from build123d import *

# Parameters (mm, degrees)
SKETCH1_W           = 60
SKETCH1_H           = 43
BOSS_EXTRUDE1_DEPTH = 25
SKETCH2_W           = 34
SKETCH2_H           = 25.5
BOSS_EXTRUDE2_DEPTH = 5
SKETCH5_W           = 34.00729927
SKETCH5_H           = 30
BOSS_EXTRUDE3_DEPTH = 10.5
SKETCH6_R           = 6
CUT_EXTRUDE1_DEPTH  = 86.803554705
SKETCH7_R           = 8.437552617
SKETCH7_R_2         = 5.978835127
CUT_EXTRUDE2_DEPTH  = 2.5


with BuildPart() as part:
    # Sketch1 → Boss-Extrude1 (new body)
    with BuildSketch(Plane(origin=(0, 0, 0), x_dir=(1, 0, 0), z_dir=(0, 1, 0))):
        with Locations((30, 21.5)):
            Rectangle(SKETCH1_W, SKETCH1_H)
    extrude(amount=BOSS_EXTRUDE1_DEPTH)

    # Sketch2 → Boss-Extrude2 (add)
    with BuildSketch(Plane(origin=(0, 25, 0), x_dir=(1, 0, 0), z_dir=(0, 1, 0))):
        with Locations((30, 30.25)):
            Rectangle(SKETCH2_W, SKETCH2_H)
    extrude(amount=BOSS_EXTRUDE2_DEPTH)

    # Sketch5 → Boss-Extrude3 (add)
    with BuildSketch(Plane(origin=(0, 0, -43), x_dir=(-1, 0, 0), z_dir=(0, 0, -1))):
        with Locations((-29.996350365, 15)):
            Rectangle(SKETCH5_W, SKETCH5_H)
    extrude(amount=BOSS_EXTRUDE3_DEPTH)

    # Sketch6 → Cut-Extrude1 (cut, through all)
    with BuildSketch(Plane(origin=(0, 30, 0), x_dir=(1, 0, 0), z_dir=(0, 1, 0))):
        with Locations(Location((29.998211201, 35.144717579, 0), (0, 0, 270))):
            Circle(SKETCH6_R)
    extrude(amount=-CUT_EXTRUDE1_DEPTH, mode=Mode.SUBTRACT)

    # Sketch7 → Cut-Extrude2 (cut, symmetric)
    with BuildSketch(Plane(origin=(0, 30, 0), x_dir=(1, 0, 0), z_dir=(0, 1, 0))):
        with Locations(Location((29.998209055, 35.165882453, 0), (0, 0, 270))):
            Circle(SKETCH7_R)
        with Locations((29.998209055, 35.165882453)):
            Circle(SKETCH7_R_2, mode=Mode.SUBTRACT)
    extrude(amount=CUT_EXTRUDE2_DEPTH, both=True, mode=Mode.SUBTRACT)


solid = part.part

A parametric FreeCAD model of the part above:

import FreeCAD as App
import Part
import Sketcher

doc = App.newDocument("Part")
body = doc.addObject("PartDesign::Body", "Body")

# Sketch on XZ plane
sketch1 = doc.addObject("Sketcher::SketchObject", "Sketch")
body.addObject(sketch1)
sketch1.AttachmentSupport = (doc.XZ_Plane, [""])
sketch1.MapMode = "FlatFace"
sketch1.addGeometry(Part.LineSegment(App.Vector(0, -43, 0), App.Vector(0, 0, 0)), False)
sketch1.addGeometry(Part.LineSegment(App.Vector(0, 0, 0), App.Vector(60, 0, 0)), False)
sketch1.addGeometry(Part.LineSegment(App.Vector(60, 0, 0), App.Vector(60, -43, 0)), False)
sketch1.addGeometry(Part.LineSegment(App.Vector(60, -43, 0), App.Vector(0, -43, 0)), False)
sketch1.addConstraint(Sketcher.Constraint("Coincident", 0, 2, 1, 1))
sketch1.addConstraint(Sketcher.Constraint("Coincident", 1, 2, 2, 1))
sketch1.addConstraint(Sketcher.Constraint("Coincident", 2, 2, 3, 1))
sketch1.addConstraint(Sketcher.Constraint("Coincident", 3, 2, 0, 1))
sketch1.addConstraint(Sketcher.Constraint("Vertical", 0))
sketch1.addConstraint(Sketcher.Constraint("Horizontal", 1))
sketch1.addConstraint(Sketcher.Constraint("Vertical", 2))
sketch1.addConstraint(Sketcher.Constraint("Horizontal", 3))
sketch1.addConstraint(Sketcher.Constraint("Coincident", 0, 2, -1, 1))
sketch1.addConstraint(Sketcher.Constraint("DistanceX", 1, 1, 1, 2, 60.0))
sketch1.addConstraint(Sketcher.Constraint("DistanceY", 0, 1, 0, 2, 43.0))
pad1 = doc.addObject("PartDesign::Pad", "Pad")
body.addObject(pad1)
pad1.Profile = sketch1
pad1.Length = 25
pad1.Reversed = True

# Sketch on XZ plane
sketch2 = doc.addObject("Sketcher::SketchObject", "Sketch001")
body.addObject(sketch2)
sketch2.AttachmentSupport = (doc.XZ_Plane, [""])
sketch2.MapMode = "FlatFace"
sketch2.AttachmentOffset = App.Placement(App.Vector(0, 0, -25), App.Rotation())
sketch2.addGeometry(Part.LineSegment(App.Vector(13, -43, 0), App.Vector(13, -18, 0)), False)
sketch2.addGeometry(Part.LineSegment(App.Vector(13, -18, 0), App.Vector(47, -18, 0)), False)
sketch2.addGeometry(Part.LineSegment(App.Vector(47, -18, 0), App.Vector(47, -43, 0)), False)
sketch2.addGeometry(Part.LineSegment(App.Vector(47, -43, 0), App.Vector(13, -43, 0)), False)
sketch2.addConstraint(Sketcher.Constraint("Coincident", 0, 2, 1, 1))
sketch2.addConstraint(Sketcher.Constraint("Coincident", 1, 2, 2, 1))
sketch2.addConstraint(Sketcher.Constraint("Coincident", 2, 2, 3, 1))
sketch2.addConstraint(Sketcher.Constraint("Coincident", 3, 2, 0, 1))
sketch2.addConstraint(Sketcher.Constraint("Vertical", 0))
sketch2.addConstraint(Sketcher.Constraint("Horizontal", 1))
sketch2.addConstraint(Sketcher.Constraint("Vertical", 2))
sketch2.addConstraint(Sketcher.Constraint("Horizontal", 3))
sketch2.addConstraint(Sketcher.Constraint("DistanceX", 1, 1, 1, 2, 34.0))
sketch2.addConstraint(Sketcher.Constraint("DistanceY", 0, 1, 0, 2, 25.5))
sketch2.addConstraint(Sketcher.Constraint("DistanceX", -1, 1, 0, 2, 13.0))
sketch2.addConstraint(Sketcher.Constraint("DistanceY", 2, 2, -1, 1, 43.0))
pad2 = doc.addObject("PartDesign::Pad", "Pad001")
body.addObject(pad2)
pad2.Profile = sketch2
pad2.Length = 5
pad2.Reversed = True

# Sketch on XY plane
sketch3 = doc.addObject("Sketcher::SketchObject", "Sketch002")
body.addObject(sketch3)
sketch3.AttachmentSupport = (doc.XY_Plane, [""])
sketch3.MapMode = "FlatFace"
sketch3.AttachmentOffset = App.Placement(App.Vector(0, 0, -43), App.Rotation())
sketch3.addGeometry(Part.LineSegment(App.Vector(47, 30, 0), App.Vector(47, 0, 0)), False)
sketch3.addGeometry(Part.LineSegment(App.Vector(47, 0, 0), App.Vector(13, 0, 0)), False)
sketch3.addGeometry(Part.LineSegment(App.Vector(13, 0, 0), App.Vector(13, 30, 0)), False)
sketch3.addGeometry(Part.LineSegment(App.Vector(13, 30, 0), App.Vector(47, 30, 0)), False)
sketch3.addConstraint(Sketcher.Constraint("Coincident", 0, 2, 1, 1))
sketch3.addConstraint(Sketcher.Constraint("Coincident", 1, 2, 2, 1))
sketch3.addConstraint(Sketcher.Constraint("Coincident", 2, 2, 3, 1))
sketch3.addConstraint(Sketcher.Constraint("Coincident", 3, 2, 0, 1))
sketch3.addConstraint(Sketcher.Constraint("Vertical", 0))
sketch3.addConstraint(Sketcher.Constraint("Horizontal", 1))
sketch3.addConstraint(Sketcher.Constraint("Vertical", 2))
sketch3.addConstraint(Sketcher.Constraint("Horizontal", 3))
sketch3.addConstraint(Sketcher.Constraint("PointOnObject", 0, 2, -1))
sketch3.addConstraint(Sketcher.Constraint("DistanceY", 0, 2, 0, 1, 30.0))
sketch3.addConstraint(Sketcher.Constraint("DistanceX", -1, 1, 0, 2, 47.0))
sketch3.addConstraint(Sketcher.Constraint("DistanceX", 1, 2, 1, 1, 34.007299))
pad3 = doc.addObject("PartDesign::Pad", "Pad002")
body.addObject(pad3)
pad3.Profile = sketch3
pad3.Length = 10.5
pad3.Reversed = True

# Sketch on XZ plane
sketch4 = doc.addObject("Sketcher::SketchObject", "Sketch003")
body.addObject(sketch4)
sketch4.AttachmentSupport = (doc.XZ_Plane, [""])
sketch4.MapMode = "FlatFace"
sketch4.AttachmentOffset = App.Placement(App.Vector(0, 0, -30), App.Rotation())
sketch4.addGeometry(Part.Circle(App.Vector(30, -35, 0), App.Vector(0, 0, 1), 6), False)
sketch4.addConstraint(Sketcher.Constraint("Diameter", 0, 12.0))
sketch4.addConstraint(Sketcher.Constraint("DistanceX", -1, 1, 0, 3, 29.998211))
sketch4.addConstraint(Sketcher.Constraint("DistanceY", 0, 3, -1, 1, 35.144718))
pocket1 = doc.addObject("PartDesign::Pocket", "Pocket")
body.addObject(pocket1)
pocket1.Profile = sketch4
pocket1.Type = "ThroughAll"
pocket1.Reversed = True

# Sketch on XZ plane
sketch5 = doc.addObject("Sketcher::SketchObject", "Sketch004")
body.addObject(sketch5)
sketch5.AttachmentSupport = (doc.XZ_Plane, [""])
sketch5.MapMode = "FlatFace"
sketch5.AttachmentOffset = App.Placement(App.Vector(0, 0, -30), App.Rotation())
sketch5.addGeometry(Part.Circle(App.Vector(30, -35, 0), App.Vector(0, 0, 1), 8), False)
sketch5.addGeometry(Part.Circle(App.Vector(30, -35, 0), App.Vector(0, 0, 1), 6), False)
sketch5.addConstraint(Sketcher.Constraint("Coincident", 1, 3, 0, 3))
sketch5.addConstraint(Sketcher.Constraint("Diameter", 1, 11.95767))
sketch5.addConstraint(Sketcher.Constraint("Diameter", 0, 16.875105))
sketch5.addConstraint(Sketcher.Constraint("DistanceX", -1, 1, 0, 3, 29.998209))
sketch5.addConstraint(Sketcher.Constraint("DistanceY", 0, 3, -1, 1, 35.165882))
pocket2 = doc.addObject("PartDesign::Pocket", "Pocket001")
body.addObject(pocket2)
pocket2.Profile = sketch5
pocket2.Length = 5
pocket2.Midplane = True

doc.recompute()
